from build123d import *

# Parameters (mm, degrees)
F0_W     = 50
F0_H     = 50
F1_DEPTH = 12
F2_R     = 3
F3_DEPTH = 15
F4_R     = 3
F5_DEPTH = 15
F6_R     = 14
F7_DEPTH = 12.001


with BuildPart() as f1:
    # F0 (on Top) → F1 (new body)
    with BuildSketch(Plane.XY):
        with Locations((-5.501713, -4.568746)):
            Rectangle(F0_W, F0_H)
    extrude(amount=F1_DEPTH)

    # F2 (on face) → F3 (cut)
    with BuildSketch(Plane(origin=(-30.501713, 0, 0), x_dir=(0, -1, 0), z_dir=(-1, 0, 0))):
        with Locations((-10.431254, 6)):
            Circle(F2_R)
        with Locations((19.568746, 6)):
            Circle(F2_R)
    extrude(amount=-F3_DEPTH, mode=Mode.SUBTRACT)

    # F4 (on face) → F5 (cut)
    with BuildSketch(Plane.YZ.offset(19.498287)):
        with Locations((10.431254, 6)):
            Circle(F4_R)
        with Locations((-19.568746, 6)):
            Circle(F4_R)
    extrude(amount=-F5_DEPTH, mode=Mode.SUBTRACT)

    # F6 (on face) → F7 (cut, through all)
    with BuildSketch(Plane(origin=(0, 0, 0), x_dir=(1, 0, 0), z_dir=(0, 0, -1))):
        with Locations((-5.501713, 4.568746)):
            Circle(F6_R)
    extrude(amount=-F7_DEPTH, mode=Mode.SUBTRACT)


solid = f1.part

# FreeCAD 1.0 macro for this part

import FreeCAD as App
import Part
import Sketcher


def add_polygon(sketch, points):
    """Adds a closed chain of lines whose ends are joined by coincident constraints."""
    first, n = sketch.GeometryCount, len(points)
    for a, b in zip(points, points[1:] + points[:1]):
        sketch.addGeometry(Part.LineSegment(App.Vector(*a, 0), App.Vector(*b, 0)), False)
    for i in range(n):
        sketch.addConstraint(Sketcher.Constraint("Coincident", first + i, 2, first + (i + 1) % n, 1))

doc = App.newDocument("Part")
body = doc.addObject("PartDesign::Body", "Body")

sketch1 = doc.addObject("Sketcher::SketchObject", "Sketch")
body.addObject(sketch1)
sketch1.AttachmentSupport = (doc.XY_Plane, [""])
sketch1.MapMode = "FlatFace"
add_polygon(sketch1, [(-31, 20), (-31, -30), (19, -30), (19, 20)])
sketch1.addConstraint([
    Sketcher.Constraint("Vertical", 0),
    Sketcher.Constraint("Horizontal", 1),
    Sketcher.Constraint("Vertical", 2),
    Sketcher.Constraint("Horizontal", 3),
    Sketcher.Constraint("Equal", 3, 0),
    Sketcher.Constraint("DistanceX", 1, 1, 1, 2, 50.0),
    Sketcher.Constraint("DistanceX", 0, 2, -1, 1, 30.501713),
    Sketcher.Constraint("DistanceY", 0, 2, -1, 1, 29.568746),
])
pad1 = doc.addObject("PartDesign::Pad", "Pad")
body.addObject(pad1)
pad1.Profile = sketch1
pad1.Length = 12

sketch2 = doc.addObject("Sketcher::SketchObject", "Sketch001")
body.addObject(sketch2)
sketch2.AttachmentSupport = (doc.YZ_Plane, [""])
sketch2.MapMode = "FlatFace"
sketch2.AttachmentOffset = App.Placement(App.Vector(0, 0, -30.501713), App.Rotation())
sketch2.addGeometry([
    Part.Circle(App.Vector(10.4, 6, 0), App.Vector(0, 0, 1), 3),
    Part.Circle(App.Vector(-19.6, 6, 0), App.Vector(0, 0, 1), 3),
], False)
sketch2.addConstraint([
    Sketcher.Constraint("Equal", 0, 1),
    Sketcher.Constraint("Horizontal", 0, 3, 1, 3),
    Sketcher.Constraint("Diameter", 0, 6.0),
    Sketcher.Constraint("DistanceY", -1, 1, 0, 3, 6.0),
    Sketcher.Constraint("DistanceX", 1, 3, 0, 3, 30.0),
    Sketcher.Constraint("DistanceX", -1, 1, 0, 3, 10.431254),
])
pocket1 = doc.addObject("PartDesign::Pocket", "Pocket")
body.addObject(pocket1)
pocket1.Profile = sketch2
pocket1.Length = 15
pocket1.Reversed = True

sketch3 = doc.addObject("Sketcher::SketchObject", "Sketch002")
body.addObject(sketch3)
sketch3.AttachmentSupport = (doc.YZ_Plane, [""])
sketch3.MapMode = "FlatFace"
sketch3.AttachmentOffset = App.Placement(App.Vector(0, 0, 19.498287), App.Rotation())
sketch3.addGeometry([
    Part.Circle(App.Vector(10.4, 6, 0), App.Vector(0, 0, 1), 3),
    Part.Circle(App.Vector(-19.6, 6, 0), App.Vector(0, 0, 1), 3),
], False)
sketch3.addConstraint([
    Sketcher.Constraint("Equal", 0, 1),
    Sketcher.Constraint("Horizontal", 0, 3, 1, 3),
    Sketcher.Constraint("Diameter", 0, 6.0),
    Sketcher.Constraint("DistanceY", -1, 1, 0, 3, 6.0),
    Sketcher.Constraint("DistanceX", 1, 3, 0, 3, 30.0),
    Sketcher.Constraint("DistanceX", -1, 1, 0, 3, 10.431254),
])
pocket2 = doc.addObject("PartDesign::Pocket", "Pocket001")
body.addObject(pocket2)
pocket2.Profile = sketch3
pocket2.Length = 15

sketch4 = doc.addObject("Sketcher::SketchObject", "Sketch003")
body.addObject(sketch4)
sketch4.AttachmentSupport = (doc.XY_Plane, [""])
sketch4.MapMode = "FlatFace"
sketch4.addGeometry(Part.Circle(App.Vector(-6, -5, 0), App.Vector(0, 0, 1), 14), False)
sketch4.addConstraint([
    Sketcher.Constraint("Diameter", 0, 28.0),
    Sketcher.Constraint("DistanceX", 0, 3, -1, 1, 5.501713),
    Sketcher.Constraint("DistanceY", 0, 3, -1, 1, 4.568746),
])
pocket3 = doc.addObject("PartDesign::Pocket", "Pocket002")
body.addObject(pocket3)
pocket3.Profile = sketch4
pocket3.Type = "ThroughAll"
pocket3.Reversed = True

doc.recompute()
